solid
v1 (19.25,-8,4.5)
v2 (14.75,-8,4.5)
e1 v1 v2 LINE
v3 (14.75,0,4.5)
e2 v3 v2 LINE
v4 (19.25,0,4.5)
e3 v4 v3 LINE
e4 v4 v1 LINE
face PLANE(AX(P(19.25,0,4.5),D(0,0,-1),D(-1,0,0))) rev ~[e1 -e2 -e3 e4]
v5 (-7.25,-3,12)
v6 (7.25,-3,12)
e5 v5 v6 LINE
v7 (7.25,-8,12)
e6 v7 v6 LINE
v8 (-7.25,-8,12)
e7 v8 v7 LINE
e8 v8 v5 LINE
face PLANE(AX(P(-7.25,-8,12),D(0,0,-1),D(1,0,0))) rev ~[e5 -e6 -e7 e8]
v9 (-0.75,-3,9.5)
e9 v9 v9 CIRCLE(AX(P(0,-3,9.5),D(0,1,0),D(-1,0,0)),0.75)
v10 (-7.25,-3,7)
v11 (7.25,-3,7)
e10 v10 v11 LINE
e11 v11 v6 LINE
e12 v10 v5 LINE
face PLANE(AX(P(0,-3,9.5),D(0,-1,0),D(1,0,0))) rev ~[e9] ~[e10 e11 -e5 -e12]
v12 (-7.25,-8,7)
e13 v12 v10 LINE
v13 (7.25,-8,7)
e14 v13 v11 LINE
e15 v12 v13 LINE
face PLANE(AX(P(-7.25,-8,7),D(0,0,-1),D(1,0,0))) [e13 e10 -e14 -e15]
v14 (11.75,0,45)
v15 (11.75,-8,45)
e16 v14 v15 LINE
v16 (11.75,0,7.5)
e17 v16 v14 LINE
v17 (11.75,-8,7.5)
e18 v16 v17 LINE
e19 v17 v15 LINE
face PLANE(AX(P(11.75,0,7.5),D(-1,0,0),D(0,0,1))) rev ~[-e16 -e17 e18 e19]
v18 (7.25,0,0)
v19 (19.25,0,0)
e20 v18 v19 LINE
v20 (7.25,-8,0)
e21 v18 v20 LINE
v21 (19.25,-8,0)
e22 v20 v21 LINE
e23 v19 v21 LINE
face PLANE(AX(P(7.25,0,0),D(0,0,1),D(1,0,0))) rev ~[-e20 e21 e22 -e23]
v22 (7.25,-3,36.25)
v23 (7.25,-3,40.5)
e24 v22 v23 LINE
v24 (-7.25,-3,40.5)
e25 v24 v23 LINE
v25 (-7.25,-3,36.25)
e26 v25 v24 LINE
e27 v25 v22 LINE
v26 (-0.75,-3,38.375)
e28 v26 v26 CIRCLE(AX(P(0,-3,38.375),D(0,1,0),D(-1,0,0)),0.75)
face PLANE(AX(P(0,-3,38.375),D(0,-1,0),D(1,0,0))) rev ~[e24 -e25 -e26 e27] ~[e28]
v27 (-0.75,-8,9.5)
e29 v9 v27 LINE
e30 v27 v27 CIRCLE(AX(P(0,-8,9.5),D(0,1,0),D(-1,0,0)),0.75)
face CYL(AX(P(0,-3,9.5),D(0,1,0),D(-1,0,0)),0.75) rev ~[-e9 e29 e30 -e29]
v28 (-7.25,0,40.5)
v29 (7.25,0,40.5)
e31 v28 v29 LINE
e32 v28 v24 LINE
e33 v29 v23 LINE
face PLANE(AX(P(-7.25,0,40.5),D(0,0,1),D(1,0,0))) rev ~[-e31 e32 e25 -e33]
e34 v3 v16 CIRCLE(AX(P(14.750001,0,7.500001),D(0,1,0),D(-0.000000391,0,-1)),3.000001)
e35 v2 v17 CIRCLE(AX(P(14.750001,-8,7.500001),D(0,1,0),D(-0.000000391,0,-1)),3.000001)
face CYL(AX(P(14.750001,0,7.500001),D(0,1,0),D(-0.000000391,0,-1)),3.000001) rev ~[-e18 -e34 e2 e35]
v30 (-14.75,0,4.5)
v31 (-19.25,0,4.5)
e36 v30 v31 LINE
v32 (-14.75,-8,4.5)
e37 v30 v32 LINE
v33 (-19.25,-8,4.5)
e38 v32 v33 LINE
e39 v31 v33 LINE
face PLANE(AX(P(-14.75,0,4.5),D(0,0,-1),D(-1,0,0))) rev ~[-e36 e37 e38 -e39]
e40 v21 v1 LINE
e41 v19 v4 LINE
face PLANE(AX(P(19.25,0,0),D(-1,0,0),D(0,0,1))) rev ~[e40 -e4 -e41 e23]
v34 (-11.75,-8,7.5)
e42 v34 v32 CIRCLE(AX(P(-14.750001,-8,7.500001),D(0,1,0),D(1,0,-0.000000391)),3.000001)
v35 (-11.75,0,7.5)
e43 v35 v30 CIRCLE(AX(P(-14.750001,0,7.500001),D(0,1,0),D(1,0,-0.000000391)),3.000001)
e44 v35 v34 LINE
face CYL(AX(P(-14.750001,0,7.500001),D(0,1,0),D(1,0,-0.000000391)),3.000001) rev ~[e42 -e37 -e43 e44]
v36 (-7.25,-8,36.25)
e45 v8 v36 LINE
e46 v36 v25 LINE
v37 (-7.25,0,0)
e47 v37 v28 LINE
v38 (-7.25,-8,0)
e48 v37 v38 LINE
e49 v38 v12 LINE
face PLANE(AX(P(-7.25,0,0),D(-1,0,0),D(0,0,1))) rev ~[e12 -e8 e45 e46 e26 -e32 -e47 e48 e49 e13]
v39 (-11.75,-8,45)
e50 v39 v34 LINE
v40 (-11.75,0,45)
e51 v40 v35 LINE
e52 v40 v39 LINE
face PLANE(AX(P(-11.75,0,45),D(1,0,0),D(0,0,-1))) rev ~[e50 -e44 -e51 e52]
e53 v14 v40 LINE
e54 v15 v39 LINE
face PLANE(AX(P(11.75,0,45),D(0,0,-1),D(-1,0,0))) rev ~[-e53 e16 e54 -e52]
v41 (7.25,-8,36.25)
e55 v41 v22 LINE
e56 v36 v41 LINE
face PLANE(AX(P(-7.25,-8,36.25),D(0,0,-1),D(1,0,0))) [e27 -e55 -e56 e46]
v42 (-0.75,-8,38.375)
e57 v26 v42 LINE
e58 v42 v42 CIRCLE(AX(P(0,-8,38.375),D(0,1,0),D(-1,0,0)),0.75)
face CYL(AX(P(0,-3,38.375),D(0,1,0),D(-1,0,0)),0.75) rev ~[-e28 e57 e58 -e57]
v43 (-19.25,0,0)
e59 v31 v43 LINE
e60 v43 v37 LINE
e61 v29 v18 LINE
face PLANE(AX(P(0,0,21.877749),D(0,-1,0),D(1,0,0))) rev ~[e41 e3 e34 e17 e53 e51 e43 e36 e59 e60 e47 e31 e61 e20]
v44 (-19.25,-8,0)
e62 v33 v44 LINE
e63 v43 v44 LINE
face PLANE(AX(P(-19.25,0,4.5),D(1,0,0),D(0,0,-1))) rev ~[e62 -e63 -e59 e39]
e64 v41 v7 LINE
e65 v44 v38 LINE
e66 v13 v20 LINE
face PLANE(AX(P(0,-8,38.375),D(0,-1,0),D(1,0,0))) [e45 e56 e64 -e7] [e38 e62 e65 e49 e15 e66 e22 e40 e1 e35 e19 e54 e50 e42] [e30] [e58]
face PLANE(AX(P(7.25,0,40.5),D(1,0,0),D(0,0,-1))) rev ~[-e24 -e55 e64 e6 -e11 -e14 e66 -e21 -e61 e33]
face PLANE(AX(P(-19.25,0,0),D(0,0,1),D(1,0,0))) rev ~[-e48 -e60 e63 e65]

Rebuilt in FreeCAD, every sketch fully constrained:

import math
import FreeCAD as App
import Part
import Sketcher
Q = App.Units.Quantity


def add_polygon(sketch, points):
    """Adds a closed chain of lines whose ends are joined by coincident constraints."""
    first, n = sketch.GeometryCount, len(points)
    for a, b in zip(points, points[1:] + points[:1]):
        sketch.addGeometry(Part.LineSegment(App.Vector(*a, 0), App.Vector(*b, 0)), False)
    for i in range(n):
        sketch.addConstraint(Sketcher.Constraint("Coincident", first + i, 2, first + (i + 1) % n, 1))

doc = App.newDocument("Part")
body = doc.addObject("PartDesign::Body", "Body")

# Sketch on XZ plane
sketch1 = doc.addObject("Sketcher::SketchObject", "Sketch")
body.addObject(sketch1)
sketch1.AttachmentSupport = (doc.XZ_Plane, [""])
sketch1.MapMode = "FlatFace"
sketch1.addGeometry(Part.LineSegment(App.Vector(-19.2, 4.5, 0), App.Vector(-19.2, 0, 0)), False)
sketch1.addGeometry(Part.LineSegment(App.Vector(-19.2, 0, 0), App.Vector(-7.2, 0, 0)), False)
sketch1.addGeometry(Part.LineSegment(App.Vector(-7.2, 0, 0), App.Vector(-7.2, 40.5, 0)), False)
sketch1.addGeometry(Part.LineSegment(App.Vector(-7.2, 40.5, 0), App.Vector(7.2, 40.5, 0)), False)
sketch1.addGeometry(Part.LineSegment(App.Vector(7.2, 40.5, 0), App.Vector(7.2, 0, 0)), False)
sketch1.addGeometry(Part.LineSegment(App.Vector(7.2, 0, 0), App.Vector(19.2, 0, 0)), False)
sketch1.addGeometry(Part.LineSegment(App.Vector(19.2, 0, 0), App.Vector(19.2, 4.5, 0)), False)
sketch1.addGeometry(Part.LineSegment(App.Vector(19.2, 4.5, 0), App.Vector(14.8, 4.5, 0)), False)
sketch1.addGeometry(Part.ArcOfCircle(Part.Circle(App.Vector(14.8, 7.5, 0), App.Vector(0, 0, 1), 3), math.radians(-180), math.radians(-90)), False)
sketch1.addGeometry(Part.LineSegment(App.Vector(11.8, 7.5, 0), App.Vector(11.8, 45, 0)), False)
sketch1.addGeometry(Part.LineSegment(App.Vector(11.8, 45, 0), App.Vector(-11.8, 45, 0)), False)
sketch1.addGeometry(Part.LineSegment(App.Vector(-11.8, 45, 0), App.Vector(-11.8, 7.5, 0)), False)
sketch1.addGeometry(Part.ArcOfCircle(Part.Circle(App.Vector(-14.8, 7.5, 0), App.Vector(0, 0, 1), 3), math.radians(-90), math.radians(0)), False)
sketch1.addGeometry(Part.LineSegment(App.Vector(-14.8, 4.5, 0), App.Vector(-19.2, 4.5, 0)), False)
sketch1.addConstraint(Sketcher.Constraint("Coincident", 0, 2, 1, 1))
sketch1.addConstraint(Sketcher.Constraint("Coincident", 1, 2, 2, 1))
sketch1.addConstraint(Sketcher.Constraint("Coincident", 2, 2, 3, 1))
sketch1.addConstraint(Sketcher.Constraint("Coincident", 3, 2, 4, 1))
sketch1.addConstraint(Sketcher.Constraint("Coincident", 4, 2, 5, 1))
sketch1.addConstraint(Sketcher.Constraint("Coincident", 5, 2, 6, 1))
sketch1.addConstraint(Sketcher.Constraint("Coincident", 6, 2, 7, 1))
sketch1.addConstraint(Sketcher.Constraint("Tangent", 7, 2, 8, 2))
sketch1.addConstraint(Sketcher.Constraint("Tangent", 8, 1, 9, 1))
sketch1.addConstraint(Sketcher.Constraint("Coincident", 9, 2, 10, 1))
sketch1.addConstraint(Sketcher.Constraint("Coincident", 10, 2, 11, 1))
sketch1.addConstraint(Sketcher.Constraint("Tangent", 11, 2, 12, 2))
sketch1.addConstraint(Sketcher.Constraint("Tangent", 12, 1, 13, 1))
sketch1.addConstraint(Sketcher.Constraint("Coincident", 13, 2, 0, 1))
sketch1.addConstraint(Sketcher.Constraint("Vertical", 0))
sketch1.addConstraint(Sketcher.Constraint("Horizontal", 1))
sketch1.addConstraint(Sketcher.Constraint("Vertical", 2))
sketch1.addConstraint(Sketcher.Constraint("Horizontal", 3))
sketch1.addConstraint(Sketcher.Constraint("Vertical", 4))
sketch1.addConstraint(Sketcher.Constraint("Horizontal", 5))
sketch1.addConstraint(Sketcher.Constraint("Vertical", 6))
sketch1.addConstraint(Sketcher.Constraint("Horizontal", 7))
sketch1.addConstraint(Sketcher.Constraint("Vertical", 9))
sketch1.addConstraint(Sketcher.Constraint("Horizontal", 10))
sketch1.addConstraint(Sketcher.Constraint("Vertical", 11))
sketch1.addConstraint(Sketcher.Constraint("Horizontal", 13))
sketch1.addConstraint(Sketcher.Constraint("Equal", 8, 12))
sketch1.addConstraint(Sketcher.Constraint("Symmetric", 1, 2, 4, 2, -1, 1))
sketch1.addConstraint(Sketcher.Constraint("Symmetric", 8, 3, 12, 3, -2))
sketch1.addConstraint(Sketcher.Constraint("Symmetric", 0, 2, 5, 2, -2))
sketch1.addConstraint(Sketcher.Constraint("Equal", 13, 0))
sketch1.addConstraint(Sketcher.Constraint("Radius", 8, Q("3.000001 mm")))
sketch1.addConstraint(Sketcher.Constraint("DistanceX", 1, 1, 1, 2, Q("12 mm")))
sketch1.addConstraint(Sketcher.Constraint("DistanceX", 3, 1, 3, 2, Q("14.5 mm")))
sketch1.addConstraint(Sketcher.Constraint("DistanceX", 7, 2, 7, 1, Q("4.5 mm")))
sketch1.addConstraint(Sketcher.Constraint("DistanceY", 2, 1, 2, 2, Q("40.5 mm")))
sketch1.addConstraint(Sketcher.Constraint("DistanceY", 9, 1, 9, 2, Q("37.5 mm")))
pad1 = doc.addObject("PartDesign::Pad", "Pad")
body.addObject(pad1)
pad1.Profile = sketch1
pad1.Length = 8

# Sketch on XZ plane
sketch2 = doc.addObject("Sketcher::SketchObject", "Sketch001")
body.addObject(sketch2)
sketch2.AttachmentSupport = (doc.XZ_Plane, [""])
sketch2.MapMode = "FlatFace"
sketch2.AttachmentOffset = App.Placement(App.Vector(0, 0, 8), App.Rotation())
add_polygon(sketch2, [(-7.2, 40.5), (-7.2, 36.2), (7.2, 36.2), (7.2, 40.5)])  # lines 0-3
add_polygon(sketch2, [(-7.2, 12), (-7.2, 7), (7.2, 7), (7.2, 12)])  # lines 4-7
sketch2.addConstraint(Sketcher.Constraint("Vertical", 0))
sketch2.addConstraint(Sketcher.Constraint("Horizontal", 1))
sketch2.addConstraint(Sketcher.Constraint("Vertical", 2))
sketch2.addConstraint(Sketcher.Constraint("Horizontal", 3))
sketch2.addConstraint(Sketcher.Constraint("Vertical", 4))
sketch2.addConstraint(Sketcher.Constraint("Horizontal", 5))
sketch2.addConstraint(Sketcher.Constraint("Vertical", 6))
sketch2.addConstraint(Sketcher.Constraint("Horizontal", 7))
sketch2.addConstraint(Sketcher.Constraint("Vertical", 3, 2, 4, 2))
sketch2.addConstraint(Sketcher.Constraint("Vertical", 2, 2, 5, 2))
sketch2.addConstraint(Sketcher.Constraint("DistanceY", 4, 2, 4, 1, Q("5 mm")))
sketch2.addConstraint(Sketcher.Constraint("DistanceX", 1, 1, 1, 2, Q("14.5 mm")))
sketch2.addConstraint(Sketcher.Constraint("DistanceY", -1, 1, 4, 2, Q("7 mm")))
sketch2.addConstraint(Sketcher.Constraint("DistanceY", 0, 2, 0, 1, Q("4.25 mm")))
sketch2.addConstraint(Sketcher.Constraint("DistanceY", -1, 1, 2, 2, Q("40.5 mm")))
sketch2.addConstraint(Sketcher.Constraint("DistanceX", 0, 2, -1, 1, Q("7.25 mm")))
pad2 = doc.addObject("PartDesign::Pad", "Pad001")
body.addObject(pad2)
pad2.Profile = sketch2
pad2.Length = 5
pad2.Reversed = True

# Sketch on XZ plane
sketch3 = doc.addObject("Sketcher::SketchObject", "Sketch002")
body.addObject(sketch3)
sketch3.AttachmentSupport = (doc.XZ_Plane, [""])
sketch3.MapMode = "FlatFace"
sketch3.AttachmentOffset = App.Placement(App.Vector(0, 0, 3), App.Rotation())
sketch3.addGeometry(Part.Circle(App.Vector(0, 38.4, 0), App.Vector(0, 0, 1), 0.8), False)
sketch3.addGeometry(Part.Circle(App.Vector(0, 9.5, 0), App.Vector(0, 0, 1), 0.8), False)
sketch3.addConstraint(Sketcher.Constraint("Equal", 0, 1))
sketch3.addConstraint(Sketcher.Constraint("PointOnObject", 0, 3, -2))
sketch3.addConstraint(Sketcher.Constraint("PointOnObject", 1, 3, -2))
sketch3.addConstraint(Sketcher.Constraint("Diameter", 0, Q("1.5 mm")))
sketch3.addConstraint(Sketcher.Constraint("DistanceY", -1, 1, 1, 3, Q("9.5 mm")))
sketch3.addConstraint(Sketcher.Constraint("DistanceY", -1, 1, 0, 3, Q("38.375 mm")))
pocket1 = doc.addObject("PartDesign::Pocket", "Pocket")
body.addObject(pocket1)
pocket1.Profile = sketch3
pocket1.Type = "ThroughAll"
pocket1.Reversed = True

doc.recompute()
